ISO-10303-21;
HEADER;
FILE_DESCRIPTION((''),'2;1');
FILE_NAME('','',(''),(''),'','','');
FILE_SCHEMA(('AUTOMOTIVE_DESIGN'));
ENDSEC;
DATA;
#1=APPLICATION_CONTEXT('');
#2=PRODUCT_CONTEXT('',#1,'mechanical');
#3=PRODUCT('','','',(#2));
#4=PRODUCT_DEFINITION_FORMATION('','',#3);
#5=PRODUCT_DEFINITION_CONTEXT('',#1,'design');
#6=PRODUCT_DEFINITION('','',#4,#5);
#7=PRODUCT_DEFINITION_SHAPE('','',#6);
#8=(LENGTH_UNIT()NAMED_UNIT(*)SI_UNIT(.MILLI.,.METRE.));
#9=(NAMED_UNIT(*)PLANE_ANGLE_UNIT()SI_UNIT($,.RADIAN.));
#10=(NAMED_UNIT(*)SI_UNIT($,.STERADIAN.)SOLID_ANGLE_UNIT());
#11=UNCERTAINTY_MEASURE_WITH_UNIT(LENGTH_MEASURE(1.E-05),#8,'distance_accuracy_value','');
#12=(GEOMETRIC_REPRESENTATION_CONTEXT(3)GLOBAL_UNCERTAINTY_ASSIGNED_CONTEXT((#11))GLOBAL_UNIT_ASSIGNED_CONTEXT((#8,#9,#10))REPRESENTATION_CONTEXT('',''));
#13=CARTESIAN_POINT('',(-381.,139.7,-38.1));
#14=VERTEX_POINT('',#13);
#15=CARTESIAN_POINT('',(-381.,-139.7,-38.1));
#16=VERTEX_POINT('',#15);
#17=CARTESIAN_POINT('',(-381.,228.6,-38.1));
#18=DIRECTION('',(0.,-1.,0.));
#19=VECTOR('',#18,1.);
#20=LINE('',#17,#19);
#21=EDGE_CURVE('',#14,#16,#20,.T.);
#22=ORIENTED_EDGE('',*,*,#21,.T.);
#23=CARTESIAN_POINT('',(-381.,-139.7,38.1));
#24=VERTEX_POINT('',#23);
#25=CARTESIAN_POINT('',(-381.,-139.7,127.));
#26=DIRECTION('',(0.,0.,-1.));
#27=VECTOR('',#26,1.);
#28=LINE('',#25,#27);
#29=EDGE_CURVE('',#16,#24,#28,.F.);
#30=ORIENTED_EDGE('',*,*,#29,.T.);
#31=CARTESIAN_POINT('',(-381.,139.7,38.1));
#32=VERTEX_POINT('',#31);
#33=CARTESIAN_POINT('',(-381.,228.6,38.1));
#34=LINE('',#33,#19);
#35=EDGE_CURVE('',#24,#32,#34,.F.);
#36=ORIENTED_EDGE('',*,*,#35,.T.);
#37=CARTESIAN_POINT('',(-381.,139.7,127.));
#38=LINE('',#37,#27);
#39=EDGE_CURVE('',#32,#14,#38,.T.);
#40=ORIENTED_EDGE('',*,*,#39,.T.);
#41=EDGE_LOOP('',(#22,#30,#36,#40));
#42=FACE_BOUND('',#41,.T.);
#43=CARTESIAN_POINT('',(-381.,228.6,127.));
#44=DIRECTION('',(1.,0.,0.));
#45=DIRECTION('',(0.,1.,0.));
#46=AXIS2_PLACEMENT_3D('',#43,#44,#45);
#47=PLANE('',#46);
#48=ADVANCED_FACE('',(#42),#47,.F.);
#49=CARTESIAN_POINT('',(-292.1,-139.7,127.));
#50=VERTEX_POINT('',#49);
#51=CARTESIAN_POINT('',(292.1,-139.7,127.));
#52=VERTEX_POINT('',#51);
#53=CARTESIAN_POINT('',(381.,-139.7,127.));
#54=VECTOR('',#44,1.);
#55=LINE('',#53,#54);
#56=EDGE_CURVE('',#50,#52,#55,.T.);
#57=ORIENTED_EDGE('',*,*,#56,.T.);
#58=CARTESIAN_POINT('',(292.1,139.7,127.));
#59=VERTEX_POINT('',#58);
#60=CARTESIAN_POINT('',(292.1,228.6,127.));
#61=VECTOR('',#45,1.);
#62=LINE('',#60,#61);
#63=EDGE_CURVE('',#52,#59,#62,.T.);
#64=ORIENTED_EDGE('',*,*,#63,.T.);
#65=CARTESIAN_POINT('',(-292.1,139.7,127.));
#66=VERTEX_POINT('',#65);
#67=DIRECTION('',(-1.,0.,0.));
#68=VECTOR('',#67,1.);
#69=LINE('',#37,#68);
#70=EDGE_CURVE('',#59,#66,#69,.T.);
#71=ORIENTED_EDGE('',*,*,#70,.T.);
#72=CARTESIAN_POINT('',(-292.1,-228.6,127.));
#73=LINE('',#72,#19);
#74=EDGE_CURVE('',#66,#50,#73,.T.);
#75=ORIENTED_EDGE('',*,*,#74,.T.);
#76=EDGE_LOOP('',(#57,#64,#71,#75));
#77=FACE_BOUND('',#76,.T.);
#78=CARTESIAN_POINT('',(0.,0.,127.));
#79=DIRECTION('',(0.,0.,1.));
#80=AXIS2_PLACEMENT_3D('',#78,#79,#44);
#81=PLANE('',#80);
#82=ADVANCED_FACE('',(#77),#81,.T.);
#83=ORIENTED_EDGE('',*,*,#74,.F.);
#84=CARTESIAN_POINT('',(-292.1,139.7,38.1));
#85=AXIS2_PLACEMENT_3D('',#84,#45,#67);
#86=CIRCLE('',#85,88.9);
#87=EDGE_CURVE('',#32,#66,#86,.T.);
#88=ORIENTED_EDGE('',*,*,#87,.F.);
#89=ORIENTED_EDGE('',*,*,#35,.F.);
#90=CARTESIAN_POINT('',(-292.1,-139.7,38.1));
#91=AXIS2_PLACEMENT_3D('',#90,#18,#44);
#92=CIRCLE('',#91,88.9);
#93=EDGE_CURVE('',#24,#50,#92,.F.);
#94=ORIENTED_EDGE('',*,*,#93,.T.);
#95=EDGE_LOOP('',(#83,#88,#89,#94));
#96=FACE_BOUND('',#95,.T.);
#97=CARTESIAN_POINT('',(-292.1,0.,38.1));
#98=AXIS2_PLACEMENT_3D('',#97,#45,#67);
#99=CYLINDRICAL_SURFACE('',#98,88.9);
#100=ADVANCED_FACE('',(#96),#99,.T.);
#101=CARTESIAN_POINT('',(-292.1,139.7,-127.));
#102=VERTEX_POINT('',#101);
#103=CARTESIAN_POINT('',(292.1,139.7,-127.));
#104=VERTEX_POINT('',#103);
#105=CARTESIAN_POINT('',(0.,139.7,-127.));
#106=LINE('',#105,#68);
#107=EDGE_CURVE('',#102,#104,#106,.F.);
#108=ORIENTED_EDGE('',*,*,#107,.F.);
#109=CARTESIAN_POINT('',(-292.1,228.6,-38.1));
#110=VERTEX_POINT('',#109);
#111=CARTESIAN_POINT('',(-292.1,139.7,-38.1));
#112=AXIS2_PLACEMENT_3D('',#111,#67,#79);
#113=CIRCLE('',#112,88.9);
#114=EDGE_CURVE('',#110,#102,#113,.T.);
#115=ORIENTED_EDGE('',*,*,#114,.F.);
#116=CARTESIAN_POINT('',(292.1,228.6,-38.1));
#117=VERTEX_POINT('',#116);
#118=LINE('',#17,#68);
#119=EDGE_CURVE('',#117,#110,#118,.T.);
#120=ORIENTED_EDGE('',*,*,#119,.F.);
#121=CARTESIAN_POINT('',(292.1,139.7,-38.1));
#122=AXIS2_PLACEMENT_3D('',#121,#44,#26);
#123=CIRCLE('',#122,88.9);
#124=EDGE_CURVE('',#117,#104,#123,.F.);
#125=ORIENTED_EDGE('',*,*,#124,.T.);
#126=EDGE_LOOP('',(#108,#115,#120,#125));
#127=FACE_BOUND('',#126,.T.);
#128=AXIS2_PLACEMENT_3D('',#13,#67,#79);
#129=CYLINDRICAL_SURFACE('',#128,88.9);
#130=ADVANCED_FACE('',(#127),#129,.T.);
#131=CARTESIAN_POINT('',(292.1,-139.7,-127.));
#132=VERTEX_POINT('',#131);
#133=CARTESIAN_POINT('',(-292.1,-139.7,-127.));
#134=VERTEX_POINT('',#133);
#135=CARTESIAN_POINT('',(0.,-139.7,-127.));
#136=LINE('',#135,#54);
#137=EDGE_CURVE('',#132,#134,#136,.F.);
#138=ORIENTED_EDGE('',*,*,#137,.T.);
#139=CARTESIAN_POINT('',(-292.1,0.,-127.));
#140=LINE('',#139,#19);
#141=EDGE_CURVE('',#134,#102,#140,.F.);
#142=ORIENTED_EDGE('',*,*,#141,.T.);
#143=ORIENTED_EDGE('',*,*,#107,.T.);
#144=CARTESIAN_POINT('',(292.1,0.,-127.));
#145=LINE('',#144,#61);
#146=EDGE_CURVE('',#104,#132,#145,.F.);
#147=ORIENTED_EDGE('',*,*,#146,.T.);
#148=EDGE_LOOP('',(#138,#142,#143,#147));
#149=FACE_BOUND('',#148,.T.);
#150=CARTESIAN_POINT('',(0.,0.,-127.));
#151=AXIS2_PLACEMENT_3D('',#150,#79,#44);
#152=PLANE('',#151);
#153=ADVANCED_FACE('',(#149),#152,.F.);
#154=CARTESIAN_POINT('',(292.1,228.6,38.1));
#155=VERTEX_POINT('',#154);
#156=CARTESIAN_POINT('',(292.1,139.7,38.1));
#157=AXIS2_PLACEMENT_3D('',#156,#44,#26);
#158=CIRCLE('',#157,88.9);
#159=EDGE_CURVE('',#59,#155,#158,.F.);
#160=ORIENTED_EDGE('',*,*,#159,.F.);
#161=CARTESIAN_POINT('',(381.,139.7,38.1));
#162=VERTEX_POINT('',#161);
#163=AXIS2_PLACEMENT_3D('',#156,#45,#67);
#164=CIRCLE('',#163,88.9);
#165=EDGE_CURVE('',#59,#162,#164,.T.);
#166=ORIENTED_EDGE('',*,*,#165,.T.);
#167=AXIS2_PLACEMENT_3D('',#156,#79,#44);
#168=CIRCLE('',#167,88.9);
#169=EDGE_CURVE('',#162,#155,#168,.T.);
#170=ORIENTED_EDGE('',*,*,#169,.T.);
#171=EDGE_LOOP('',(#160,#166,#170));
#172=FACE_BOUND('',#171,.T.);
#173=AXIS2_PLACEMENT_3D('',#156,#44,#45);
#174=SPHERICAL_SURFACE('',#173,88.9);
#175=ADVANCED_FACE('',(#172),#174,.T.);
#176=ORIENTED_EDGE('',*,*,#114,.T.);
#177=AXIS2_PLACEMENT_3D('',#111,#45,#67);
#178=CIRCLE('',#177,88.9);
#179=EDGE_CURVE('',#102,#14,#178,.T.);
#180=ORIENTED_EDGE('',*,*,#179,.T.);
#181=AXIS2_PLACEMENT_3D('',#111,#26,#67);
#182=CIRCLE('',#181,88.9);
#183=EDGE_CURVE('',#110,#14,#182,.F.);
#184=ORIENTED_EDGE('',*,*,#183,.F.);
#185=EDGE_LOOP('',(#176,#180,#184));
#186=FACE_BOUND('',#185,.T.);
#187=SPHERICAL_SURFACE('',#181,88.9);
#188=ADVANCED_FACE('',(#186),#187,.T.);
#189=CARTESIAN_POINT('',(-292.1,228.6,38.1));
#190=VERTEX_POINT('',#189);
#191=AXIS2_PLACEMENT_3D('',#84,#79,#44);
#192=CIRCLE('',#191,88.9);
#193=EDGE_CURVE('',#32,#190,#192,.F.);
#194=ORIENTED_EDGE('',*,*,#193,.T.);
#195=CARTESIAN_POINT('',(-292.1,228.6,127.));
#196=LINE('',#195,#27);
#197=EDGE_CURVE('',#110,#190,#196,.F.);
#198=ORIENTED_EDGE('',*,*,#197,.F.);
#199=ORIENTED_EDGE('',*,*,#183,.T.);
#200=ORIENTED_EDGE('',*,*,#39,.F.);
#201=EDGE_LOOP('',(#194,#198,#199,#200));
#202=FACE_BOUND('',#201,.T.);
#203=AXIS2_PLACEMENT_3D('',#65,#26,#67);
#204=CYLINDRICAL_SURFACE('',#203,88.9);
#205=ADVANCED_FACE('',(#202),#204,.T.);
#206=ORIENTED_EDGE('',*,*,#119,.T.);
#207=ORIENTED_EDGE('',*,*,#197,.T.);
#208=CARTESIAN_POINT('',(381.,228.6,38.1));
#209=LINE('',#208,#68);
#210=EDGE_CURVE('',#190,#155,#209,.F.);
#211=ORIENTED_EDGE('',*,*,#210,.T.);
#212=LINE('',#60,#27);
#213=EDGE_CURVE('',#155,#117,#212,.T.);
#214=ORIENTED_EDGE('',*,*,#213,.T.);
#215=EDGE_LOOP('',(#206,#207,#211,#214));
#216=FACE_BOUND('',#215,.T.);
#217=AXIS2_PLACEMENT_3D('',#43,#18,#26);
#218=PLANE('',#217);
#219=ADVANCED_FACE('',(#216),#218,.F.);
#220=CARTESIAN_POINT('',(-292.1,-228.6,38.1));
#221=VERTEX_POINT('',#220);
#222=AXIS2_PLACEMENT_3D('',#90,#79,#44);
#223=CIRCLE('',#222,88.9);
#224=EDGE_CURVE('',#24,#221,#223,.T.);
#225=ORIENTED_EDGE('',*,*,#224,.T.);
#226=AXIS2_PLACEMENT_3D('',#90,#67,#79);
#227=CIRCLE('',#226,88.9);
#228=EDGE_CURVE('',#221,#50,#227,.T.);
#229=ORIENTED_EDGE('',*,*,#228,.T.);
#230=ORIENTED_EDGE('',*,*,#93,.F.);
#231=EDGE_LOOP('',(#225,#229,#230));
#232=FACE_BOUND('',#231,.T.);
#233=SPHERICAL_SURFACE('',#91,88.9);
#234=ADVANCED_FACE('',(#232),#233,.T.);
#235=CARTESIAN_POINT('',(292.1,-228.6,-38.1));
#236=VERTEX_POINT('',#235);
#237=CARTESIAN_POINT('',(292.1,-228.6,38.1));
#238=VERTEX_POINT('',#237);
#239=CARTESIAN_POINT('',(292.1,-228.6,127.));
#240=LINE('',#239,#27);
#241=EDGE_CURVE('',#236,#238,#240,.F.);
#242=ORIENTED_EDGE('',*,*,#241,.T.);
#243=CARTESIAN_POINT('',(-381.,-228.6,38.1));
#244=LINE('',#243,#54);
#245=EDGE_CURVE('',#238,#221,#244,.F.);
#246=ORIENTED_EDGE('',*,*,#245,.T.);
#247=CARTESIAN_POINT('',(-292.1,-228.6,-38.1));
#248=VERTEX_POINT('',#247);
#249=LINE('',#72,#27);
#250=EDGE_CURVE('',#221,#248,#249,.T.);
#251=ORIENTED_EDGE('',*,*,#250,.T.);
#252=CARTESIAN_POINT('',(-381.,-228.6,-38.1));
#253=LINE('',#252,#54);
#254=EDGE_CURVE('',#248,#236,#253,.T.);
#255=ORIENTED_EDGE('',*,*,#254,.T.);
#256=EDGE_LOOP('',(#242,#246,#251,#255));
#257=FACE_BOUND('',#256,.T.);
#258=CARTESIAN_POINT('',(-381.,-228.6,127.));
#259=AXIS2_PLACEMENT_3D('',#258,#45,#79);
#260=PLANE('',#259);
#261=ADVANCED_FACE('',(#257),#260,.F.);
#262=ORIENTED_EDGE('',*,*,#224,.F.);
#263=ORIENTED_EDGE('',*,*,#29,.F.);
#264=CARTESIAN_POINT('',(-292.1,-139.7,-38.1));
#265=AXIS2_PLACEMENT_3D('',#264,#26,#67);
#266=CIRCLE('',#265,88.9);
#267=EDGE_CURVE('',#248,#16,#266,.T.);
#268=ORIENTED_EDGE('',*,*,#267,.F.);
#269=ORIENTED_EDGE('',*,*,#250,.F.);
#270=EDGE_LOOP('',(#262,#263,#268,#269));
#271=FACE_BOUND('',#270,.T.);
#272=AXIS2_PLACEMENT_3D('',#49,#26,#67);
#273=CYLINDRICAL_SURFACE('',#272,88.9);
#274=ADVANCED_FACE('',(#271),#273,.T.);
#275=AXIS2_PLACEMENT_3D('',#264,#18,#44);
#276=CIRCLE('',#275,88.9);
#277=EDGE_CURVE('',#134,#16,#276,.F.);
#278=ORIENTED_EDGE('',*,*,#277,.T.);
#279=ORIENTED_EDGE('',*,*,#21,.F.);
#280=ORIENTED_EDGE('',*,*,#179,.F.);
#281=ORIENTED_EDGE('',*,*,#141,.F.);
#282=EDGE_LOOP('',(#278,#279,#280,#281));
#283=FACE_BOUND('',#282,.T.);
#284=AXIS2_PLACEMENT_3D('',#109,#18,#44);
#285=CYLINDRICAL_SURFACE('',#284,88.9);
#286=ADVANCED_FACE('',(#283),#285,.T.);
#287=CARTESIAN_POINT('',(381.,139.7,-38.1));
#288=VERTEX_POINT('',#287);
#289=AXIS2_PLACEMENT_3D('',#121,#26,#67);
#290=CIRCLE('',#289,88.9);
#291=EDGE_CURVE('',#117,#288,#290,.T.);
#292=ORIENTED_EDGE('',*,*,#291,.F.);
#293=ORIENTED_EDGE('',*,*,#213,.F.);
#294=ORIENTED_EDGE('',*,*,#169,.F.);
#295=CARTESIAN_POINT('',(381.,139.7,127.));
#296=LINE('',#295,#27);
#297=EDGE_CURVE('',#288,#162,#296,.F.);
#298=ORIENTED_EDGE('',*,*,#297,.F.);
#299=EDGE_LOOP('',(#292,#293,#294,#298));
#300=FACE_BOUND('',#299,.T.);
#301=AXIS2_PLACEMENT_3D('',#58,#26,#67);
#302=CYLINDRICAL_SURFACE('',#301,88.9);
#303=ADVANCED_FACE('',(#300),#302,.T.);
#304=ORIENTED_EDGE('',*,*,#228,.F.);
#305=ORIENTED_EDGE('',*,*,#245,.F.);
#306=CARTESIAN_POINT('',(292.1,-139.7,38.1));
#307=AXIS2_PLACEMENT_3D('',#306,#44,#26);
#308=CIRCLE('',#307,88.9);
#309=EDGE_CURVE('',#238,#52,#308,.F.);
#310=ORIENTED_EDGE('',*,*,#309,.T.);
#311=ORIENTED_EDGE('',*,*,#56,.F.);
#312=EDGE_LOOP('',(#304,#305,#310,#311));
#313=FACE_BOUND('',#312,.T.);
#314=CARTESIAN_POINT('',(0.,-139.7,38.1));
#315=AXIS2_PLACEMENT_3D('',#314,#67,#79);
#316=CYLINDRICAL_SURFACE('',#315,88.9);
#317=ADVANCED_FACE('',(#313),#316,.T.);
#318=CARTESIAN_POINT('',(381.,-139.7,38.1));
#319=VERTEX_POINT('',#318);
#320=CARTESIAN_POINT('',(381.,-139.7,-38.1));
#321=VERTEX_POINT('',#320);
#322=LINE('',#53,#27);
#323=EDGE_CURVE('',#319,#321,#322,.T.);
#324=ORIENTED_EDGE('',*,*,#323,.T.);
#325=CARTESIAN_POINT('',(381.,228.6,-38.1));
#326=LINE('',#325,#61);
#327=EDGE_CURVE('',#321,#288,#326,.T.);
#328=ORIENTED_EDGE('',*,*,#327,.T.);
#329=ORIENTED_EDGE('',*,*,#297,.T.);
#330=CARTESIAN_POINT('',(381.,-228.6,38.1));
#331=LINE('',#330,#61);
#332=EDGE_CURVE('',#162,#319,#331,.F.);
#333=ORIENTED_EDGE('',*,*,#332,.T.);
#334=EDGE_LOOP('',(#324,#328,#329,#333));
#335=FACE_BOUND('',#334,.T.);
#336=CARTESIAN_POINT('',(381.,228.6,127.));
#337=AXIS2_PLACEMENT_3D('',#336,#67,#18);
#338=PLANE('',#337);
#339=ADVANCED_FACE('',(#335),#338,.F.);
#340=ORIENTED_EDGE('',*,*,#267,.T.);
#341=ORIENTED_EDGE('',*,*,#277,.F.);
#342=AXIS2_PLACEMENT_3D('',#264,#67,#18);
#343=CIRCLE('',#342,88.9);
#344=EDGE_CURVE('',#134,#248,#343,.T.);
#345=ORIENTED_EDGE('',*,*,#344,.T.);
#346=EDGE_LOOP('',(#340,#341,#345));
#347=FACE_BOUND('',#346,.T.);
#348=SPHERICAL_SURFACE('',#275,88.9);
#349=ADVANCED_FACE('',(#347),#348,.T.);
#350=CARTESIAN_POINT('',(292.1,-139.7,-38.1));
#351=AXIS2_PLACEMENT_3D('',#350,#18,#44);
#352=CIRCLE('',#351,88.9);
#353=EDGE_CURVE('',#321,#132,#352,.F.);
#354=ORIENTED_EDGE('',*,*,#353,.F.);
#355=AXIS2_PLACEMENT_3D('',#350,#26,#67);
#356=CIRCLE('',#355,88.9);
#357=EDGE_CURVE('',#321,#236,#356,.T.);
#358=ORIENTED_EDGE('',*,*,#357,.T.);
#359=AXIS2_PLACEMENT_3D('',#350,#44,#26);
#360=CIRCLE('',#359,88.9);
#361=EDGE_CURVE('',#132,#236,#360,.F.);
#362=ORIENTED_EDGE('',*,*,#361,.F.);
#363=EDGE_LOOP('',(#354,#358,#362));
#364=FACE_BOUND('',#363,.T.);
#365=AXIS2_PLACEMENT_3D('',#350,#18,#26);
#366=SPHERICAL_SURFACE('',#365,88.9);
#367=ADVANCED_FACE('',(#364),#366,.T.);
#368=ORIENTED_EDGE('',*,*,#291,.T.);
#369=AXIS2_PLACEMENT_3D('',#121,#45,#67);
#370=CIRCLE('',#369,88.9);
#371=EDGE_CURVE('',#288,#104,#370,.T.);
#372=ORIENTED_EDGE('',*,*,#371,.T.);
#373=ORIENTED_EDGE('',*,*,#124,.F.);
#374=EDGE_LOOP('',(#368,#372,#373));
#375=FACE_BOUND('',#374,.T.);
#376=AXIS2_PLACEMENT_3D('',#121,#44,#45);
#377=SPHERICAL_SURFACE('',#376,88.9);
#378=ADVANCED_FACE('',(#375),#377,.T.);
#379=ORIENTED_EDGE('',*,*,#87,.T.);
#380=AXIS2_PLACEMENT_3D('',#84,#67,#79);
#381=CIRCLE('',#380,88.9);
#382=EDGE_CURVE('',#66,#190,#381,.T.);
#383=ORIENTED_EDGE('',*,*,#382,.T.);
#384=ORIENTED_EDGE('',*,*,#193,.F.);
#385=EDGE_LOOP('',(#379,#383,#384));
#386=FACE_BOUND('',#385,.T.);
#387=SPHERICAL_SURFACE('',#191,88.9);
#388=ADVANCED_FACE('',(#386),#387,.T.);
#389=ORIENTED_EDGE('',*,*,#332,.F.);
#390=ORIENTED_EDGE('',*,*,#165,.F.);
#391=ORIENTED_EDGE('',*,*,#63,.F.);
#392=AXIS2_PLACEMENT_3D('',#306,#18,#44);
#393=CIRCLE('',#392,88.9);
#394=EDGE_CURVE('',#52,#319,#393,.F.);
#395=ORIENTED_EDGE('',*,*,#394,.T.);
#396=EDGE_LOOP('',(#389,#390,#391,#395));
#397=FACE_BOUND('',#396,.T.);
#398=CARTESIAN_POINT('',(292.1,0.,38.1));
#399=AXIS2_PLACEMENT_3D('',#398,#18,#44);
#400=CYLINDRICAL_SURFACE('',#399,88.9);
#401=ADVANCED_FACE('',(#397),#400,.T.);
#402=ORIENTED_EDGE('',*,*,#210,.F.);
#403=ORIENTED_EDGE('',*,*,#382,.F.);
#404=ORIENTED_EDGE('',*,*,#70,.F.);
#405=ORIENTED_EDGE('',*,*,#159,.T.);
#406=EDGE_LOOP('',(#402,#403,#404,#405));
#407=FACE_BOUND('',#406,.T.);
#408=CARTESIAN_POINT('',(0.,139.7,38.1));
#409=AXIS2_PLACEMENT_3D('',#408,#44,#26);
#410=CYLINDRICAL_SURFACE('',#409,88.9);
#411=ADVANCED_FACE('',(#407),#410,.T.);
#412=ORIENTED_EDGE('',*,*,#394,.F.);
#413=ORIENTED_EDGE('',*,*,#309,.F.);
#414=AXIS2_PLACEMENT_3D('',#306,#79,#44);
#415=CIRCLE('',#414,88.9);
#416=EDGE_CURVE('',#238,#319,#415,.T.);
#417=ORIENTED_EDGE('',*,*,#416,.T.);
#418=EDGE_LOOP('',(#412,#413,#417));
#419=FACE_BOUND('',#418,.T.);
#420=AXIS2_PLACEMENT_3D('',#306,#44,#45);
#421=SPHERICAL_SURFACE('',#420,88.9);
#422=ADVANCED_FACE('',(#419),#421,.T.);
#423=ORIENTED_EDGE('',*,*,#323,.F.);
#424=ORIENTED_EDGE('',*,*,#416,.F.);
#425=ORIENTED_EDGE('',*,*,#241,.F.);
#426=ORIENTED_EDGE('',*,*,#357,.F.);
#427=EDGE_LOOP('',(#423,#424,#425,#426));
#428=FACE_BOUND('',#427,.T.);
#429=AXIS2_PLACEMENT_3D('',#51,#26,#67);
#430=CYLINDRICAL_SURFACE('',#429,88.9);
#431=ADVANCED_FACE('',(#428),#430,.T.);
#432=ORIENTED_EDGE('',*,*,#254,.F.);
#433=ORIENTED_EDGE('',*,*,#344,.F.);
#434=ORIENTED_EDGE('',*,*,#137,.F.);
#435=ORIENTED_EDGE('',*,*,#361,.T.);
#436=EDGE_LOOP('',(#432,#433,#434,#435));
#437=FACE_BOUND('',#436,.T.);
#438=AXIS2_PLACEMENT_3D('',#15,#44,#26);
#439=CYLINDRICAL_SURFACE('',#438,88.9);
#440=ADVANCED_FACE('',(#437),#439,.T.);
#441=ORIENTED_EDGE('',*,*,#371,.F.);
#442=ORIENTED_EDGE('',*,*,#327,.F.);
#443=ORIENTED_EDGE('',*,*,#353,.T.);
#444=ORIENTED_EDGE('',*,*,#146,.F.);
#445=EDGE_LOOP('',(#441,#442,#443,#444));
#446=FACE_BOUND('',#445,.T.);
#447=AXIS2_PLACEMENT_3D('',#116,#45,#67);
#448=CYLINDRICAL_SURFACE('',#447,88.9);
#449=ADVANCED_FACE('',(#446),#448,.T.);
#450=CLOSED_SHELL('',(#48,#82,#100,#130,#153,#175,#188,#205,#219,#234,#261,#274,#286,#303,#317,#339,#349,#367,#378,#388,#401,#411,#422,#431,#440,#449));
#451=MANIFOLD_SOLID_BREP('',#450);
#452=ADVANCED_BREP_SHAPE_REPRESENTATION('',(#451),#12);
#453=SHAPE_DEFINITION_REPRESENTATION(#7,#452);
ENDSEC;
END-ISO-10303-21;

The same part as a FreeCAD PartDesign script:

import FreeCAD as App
import Part
import Sketcher

V = App.Vector
Q = App.Units.Quantity


def add_polygon(sketch, points):
    """Adds a closed chain of lines whose ends are joined by coincident constraints."""
    first, n = sketch.GeometryCount, len(points)
    for a, b in zip(points, points[1:] + points[:1]):
        sketch.addGeometry(Part.LineSegment(App.Vector(*a, 0), App.Vector(*b, 0)), False)
    for i in range(n):
        sketch.addConstraint(Sketcher.Constraint("Coincident", first + i, 2, first + (i + 1) % n, 1))

doc = App.newDocument("Part")
body = doc.addObject("PartDesign::Body", "Body")

# Sketch on XY plane
sketch1 = body.newObject("Sketcher::SketchObject", "Sketch")
sketch1.AttachmentSupport = (doc.getObject("XY_Plane"), [""])
sketch1.MapMode = "FlatFace"
add_polygon(sketch1, [(-381, 229), (-381, -229), (381, -229), (381, 229)])  # lines 0-3
sketch1.addConstraint([
    Sketcher.Constraint("Vertical", 0),
    Sketcher.Constraint("Horizontal", 1),
    Sketcher.Constraint("Vertical", 2),
    Sketcher.Constraint("Horizontal", 3),
    Sketcher.Constraint("Symmetric", 0, 2, 2, 2, -1, 1),
    Sketcher.Constraint("DistanceX", 1, 1, 1, 2, Q("30 in")),
    Sketcher.Constraint("DistanceY", 0, 2, 0, 1, Q("18 in")),
])
pad1 = body.newObject("PartDesign::Pad", "Pad")
pad1.Profile = sketch1
pad1.Length = Q("10 in")
pad1.Midplane = True
doc.recompute()

fillet = body.newObject("PartDesign::Fillet", "Fillet")
fillet.Base = (pad1, ["Edge1"])
fillet.UseAllEdges = True
fillet.Radius = Q("3.5 in")

doc.recompute()
